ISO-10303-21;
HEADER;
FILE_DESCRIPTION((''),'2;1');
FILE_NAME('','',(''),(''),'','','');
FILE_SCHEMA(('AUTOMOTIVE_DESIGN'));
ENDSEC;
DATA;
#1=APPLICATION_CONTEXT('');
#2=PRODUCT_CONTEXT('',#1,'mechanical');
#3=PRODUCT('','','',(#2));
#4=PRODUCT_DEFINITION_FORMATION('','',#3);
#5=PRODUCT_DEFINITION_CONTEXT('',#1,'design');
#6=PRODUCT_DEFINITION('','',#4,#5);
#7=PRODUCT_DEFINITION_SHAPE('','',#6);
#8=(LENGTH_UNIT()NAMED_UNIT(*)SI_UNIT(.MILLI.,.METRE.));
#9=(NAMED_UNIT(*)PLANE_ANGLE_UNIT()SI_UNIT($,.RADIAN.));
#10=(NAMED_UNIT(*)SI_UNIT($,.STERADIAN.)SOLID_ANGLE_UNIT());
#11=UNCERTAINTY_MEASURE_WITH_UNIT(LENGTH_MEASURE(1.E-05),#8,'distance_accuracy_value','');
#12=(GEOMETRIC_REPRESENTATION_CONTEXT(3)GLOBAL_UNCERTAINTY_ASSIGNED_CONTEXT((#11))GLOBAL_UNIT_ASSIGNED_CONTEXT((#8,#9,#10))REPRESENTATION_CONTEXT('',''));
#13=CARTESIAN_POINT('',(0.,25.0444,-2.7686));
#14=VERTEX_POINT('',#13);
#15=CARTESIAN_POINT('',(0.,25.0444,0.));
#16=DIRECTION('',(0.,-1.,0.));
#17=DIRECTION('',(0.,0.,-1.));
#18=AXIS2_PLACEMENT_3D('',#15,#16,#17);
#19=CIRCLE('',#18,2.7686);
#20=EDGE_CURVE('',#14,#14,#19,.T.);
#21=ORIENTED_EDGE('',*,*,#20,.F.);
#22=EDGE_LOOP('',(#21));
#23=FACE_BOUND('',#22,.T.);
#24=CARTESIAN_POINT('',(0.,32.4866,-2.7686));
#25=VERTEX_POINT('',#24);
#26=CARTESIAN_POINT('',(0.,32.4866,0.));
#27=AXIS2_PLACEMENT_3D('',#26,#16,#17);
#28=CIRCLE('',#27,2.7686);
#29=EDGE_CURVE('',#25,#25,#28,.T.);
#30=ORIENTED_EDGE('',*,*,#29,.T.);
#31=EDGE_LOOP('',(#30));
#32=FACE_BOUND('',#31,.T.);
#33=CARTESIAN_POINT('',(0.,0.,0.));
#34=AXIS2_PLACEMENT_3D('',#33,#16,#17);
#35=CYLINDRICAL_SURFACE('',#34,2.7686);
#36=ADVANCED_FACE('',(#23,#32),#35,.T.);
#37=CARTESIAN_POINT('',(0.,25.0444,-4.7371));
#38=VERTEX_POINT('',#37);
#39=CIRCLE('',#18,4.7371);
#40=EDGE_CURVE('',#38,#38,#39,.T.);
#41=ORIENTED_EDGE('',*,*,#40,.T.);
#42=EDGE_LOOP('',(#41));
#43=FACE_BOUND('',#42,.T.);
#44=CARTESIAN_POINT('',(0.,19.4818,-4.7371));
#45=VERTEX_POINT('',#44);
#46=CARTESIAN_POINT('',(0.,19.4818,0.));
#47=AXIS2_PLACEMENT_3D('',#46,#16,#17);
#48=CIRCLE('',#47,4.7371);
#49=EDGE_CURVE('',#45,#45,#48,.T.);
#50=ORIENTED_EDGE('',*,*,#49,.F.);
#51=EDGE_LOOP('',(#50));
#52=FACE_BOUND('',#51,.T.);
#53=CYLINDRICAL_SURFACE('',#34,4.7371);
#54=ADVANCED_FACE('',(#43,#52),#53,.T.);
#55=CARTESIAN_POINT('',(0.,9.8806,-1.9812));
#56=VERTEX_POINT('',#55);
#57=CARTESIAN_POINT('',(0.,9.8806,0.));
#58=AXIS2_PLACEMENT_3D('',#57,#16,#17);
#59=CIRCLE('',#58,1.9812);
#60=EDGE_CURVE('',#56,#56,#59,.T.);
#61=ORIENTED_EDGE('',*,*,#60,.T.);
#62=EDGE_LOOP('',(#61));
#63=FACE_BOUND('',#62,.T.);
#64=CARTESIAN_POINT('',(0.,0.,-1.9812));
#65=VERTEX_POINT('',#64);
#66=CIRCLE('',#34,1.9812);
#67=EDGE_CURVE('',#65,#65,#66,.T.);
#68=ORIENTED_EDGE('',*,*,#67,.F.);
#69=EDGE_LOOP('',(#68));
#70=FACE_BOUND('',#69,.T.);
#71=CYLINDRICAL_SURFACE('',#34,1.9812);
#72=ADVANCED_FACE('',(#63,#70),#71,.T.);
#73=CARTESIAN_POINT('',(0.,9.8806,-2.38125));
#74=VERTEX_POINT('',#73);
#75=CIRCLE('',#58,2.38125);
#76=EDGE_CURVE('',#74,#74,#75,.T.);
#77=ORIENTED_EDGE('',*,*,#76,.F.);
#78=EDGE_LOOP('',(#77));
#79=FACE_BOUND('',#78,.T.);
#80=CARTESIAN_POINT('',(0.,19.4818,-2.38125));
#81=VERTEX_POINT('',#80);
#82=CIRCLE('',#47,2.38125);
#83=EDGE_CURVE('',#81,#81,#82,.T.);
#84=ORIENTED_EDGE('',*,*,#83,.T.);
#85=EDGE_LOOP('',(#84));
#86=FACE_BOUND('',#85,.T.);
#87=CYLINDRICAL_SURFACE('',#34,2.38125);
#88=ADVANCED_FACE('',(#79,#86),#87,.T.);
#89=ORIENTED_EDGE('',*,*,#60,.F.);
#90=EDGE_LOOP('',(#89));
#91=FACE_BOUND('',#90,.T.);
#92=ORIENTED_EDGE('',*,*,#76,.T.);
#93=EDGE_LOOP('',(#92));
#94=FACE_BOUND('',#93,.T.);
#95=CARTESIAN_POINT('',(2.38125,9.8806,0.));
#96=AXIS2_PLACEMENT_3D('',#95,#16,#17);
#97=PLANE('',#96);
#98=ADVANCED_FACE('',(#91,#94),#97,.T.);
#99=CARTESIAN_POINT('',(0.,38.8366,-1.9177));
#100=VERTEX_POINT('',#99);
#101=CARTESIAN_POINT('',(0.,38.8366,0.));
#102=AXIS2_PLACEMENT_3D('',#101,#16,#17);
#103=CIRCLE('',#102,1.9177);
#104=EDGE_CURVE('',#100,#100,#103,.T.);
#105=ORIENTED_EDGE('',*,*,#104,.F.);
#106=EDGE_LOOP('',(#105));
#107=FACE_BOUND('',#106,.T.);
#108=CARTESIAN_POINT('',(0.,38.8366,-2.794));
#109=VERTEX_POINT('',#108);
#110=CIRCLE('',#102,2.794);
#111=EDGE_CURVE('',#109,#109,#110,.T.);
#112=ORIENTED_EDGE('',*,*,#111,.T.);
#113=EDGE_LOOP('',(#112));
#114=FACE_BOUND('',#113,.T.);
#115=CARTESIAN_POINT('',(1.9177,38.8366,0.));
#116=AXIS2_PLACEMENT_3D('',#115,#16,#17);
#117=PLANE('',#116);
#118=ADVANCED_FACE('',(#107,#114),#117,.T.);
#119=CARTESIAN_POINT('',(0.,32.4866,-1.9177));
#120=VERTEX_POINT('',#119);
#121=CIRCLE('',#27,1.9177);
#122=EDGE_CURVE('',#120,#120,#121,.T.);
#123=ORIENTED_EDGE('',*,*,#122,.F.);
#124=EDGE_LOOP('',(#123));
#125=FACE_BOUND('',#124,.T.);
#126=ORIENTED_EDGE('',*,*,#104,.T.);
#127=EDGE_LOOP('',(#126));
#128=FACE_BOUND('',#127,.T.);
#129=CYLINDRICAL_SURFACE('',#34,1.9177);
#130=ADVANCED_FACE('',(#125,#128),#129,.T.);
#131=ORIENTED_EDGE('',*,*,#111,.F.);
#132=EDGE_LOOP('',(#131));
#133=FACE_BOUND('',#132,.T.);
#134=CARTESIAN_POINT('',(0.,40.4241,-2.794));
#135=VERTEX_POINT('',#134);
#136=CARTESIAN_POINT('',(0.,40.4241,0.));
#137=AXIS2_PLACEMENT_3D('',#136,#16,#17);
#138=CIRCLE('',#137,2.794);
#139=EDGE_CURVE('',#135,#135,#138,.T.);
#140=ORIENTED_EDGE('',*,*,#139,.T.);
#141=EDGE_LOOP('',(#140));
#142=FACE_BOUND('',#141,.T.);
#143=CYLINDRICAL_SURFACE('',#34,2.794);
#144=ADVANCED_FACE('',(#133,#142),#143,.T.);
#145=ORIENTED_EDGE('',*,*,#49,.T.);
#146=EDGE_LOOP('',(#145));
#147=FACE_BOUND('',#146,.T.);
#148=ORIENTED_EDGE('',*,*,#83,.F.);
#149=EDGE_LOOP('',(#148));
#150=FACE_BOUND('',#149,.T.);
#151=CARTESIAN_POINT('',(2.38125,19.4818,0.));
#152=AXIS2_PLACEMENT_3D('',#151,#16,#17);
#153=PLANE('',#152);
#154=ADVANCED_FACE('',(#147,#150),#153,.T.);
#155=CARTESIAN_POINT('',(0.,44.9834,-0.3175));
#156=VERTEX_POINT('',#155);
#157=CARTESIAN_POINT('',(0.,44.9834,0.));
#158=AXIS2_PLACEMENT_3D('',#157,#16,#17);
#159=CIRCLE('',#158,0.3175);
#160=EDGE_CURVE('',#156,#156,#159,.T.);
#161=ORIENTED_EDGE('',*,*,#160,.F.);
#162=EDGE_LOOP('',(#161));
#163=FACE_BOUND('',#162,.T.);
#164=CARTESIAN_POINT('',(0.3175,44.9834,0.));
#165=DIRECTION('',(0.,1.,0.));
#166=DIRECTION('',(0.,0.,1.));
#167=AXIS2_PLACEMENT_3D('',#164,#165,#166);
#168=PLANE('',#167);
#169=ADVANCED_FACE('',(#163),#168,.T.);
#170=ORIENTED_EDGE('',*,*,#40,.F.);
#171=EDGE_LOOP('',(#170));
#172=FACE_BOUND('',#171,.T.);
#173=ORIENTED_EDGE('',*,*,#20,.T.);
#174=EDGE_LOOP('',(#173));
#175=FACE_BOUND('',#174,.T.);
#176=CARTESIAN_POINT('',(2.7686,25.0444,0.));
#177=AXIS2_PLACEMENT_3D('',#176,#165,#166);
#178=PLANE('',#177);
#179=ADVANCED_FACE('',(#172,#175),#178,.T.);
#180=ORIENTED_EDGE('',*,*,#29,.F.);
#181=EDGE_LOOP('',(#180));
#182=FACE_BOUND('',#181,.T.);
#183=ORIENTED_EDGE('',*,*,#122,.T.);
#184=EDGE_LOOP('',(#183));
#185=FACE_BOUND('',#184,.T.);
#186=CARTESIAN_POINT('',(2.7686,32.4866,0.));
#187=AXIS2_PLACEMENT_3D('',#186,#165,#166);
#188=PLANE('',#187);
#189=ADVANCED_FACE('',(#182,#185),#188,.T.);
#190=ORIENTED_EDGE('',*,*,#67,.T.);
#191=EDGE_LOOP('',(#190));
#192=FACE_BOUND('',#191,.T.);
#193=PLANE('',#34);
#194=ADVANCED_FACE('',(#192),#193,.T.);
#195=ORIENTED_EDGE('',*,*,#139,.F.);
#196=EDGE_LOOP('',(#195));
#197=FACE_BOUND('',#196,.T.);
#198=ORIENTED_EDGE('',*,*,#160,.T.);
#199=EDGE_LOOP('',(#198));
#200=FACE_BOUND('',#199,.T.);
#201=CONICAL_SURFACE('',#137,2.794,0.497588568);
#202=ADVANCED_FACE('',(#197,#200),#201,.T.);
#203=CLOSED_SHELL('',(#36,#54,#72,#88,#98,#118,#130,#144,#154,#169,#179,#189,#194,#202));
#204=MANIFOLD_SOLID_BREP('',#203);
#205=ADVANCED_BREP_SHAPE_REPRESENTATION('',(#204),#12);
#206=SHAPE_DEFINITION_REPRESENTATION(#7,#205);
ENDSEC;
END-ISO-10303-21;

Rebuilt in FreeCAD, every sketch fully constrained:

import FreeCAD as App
import Part
import Sketcher

V = App.Vector
Q = App.Units.Quantity


def add_polygon(sketch, points):
    """Adds a closed chain of lines whose ends are joined by coincident constraints."""
    first, n = sketch.GeometryCount, len(points)
    for a, b in zip(points, points[1:] + points[:1]):
        sketch.addGeometry(Part.LineSegment(App.Vector(*a, 0), App.Vector(*b, 0)), False)
    for i in range(n):
        sketch.addConstraint(Sketcher.Constraint("Coincident", first + i, 2, first + (i + 1) % n, 1))

doc = App.newDocument("Part")
body = doc.addObject("PartDesign::Body", "Body")

# Sketch on XY plane
sketch1 = doc.addObject("Sketcher::SketchObject", "Sketch")
body.addObject(sketch1)
sketch1.AttachmentSupport = (doc.XY_Plane, [""])
sketch1.MapMode = "FlatFace"
add_polygon(sketch1, [(0, 0), (1.98, 0), (1.98, 9.88), (2.38, 9.88), (2.38, 19.48), (4.74, 19.48), (4.74, 25.04), (2.77, 25.04), (2.77, 32.49), (1.92, 32.49), (1.92, 38.84), (2.79, 38.84), (2.79, 40.42), (0.32, 44.98), (0, 44.98)])  # lines 0-14
sketch1.addConstraint([
    Sketcher.Constraint("Horizontal", 0),
    Sketcher.Constraint("Vertical", 1),
    Sketcher.Constraint("Horizontal", 2),
    Sketcher.Constraint("Vertical", 3),
    Sketcher.Constraint("Horizontal", 4),
    Sketcher.Constraint("Vertical", 5),
    Sketcher.Constraint("Horizontal", 6),
    Sketcher.Constraint("Vertical", 7),
    Sketcher.Constraint("Horizontal", 8),
    Sketcher.Constraint("Vertical", 9),
    Sketcher.Constraint("Horizontal", 10),
    Sketcher.Constraint("Vertical", 11),
    Sketcher.Constraint("Horizontal", 13),
    Sketcher.Constraint("Vertical", 14),
    Sketcher.Constraint("Coincident", 14, 2, -1, 1),
    Sketcher.Constraint("DistanceY", 9, 1, 9, 2, Q("0.25 in")),
    Sketcher.Constraint("DistanceX", 0, 1, 0, 2, Q("0.078 in")),
    Sketcher.Constraint("DistanceY", 1, 1, 1, 2, Q("0.389 in")),
    Sketcher.Constraint("DistanceY", 3, 1, 3, 2, Q("0.378 in")),
    Sketcher.Constraint("DistanceY", 5, 1, 5, 2, Q("0.219 in")),
    Sketcher.Constraint("DistanceY", 7, 1, 7, 2, Q("0.293 in")),
    Sketcher.Constraint("DistanceY", 11, 1, 11, 2, Q("0.0625 in")),
    Sketcher.Constraint("DistanceY", 14, 2, 14, 1, Q("1.771 in")),
    Sketcher.Constraint("DistanceX", -1, 1, 10, 2, Q("0.11 in")),
    Sketcher.Constraint("DistanceX", 6, 2, 6, 1, Q("0.0775 in")),
    Sketcher.Constraint("DistanceX", 8, 2, 8, 1, Q("0.0335 in")),
    Sketcher.Constraint("DistanceX", 10, 1, 10, 2, Q("0.0345 in")),
    Sketcher.Constraint("DistanceX", 13, 2, 13, 1, Q("0.0125 in")),
    Sketcher.Constraint("DistanceX", -1, 1, 2, 2, Q("0.09375 in")),
])
revolution = doc.addObject("PartDesign::Revolution", "Revolution")
body.addObject(revolution)
revolution.Profile = sketch1
revolution.ReferenceAxis = (sketch1, ["V_Axis"])
revolution.Angle = 360

doc.recompute()
